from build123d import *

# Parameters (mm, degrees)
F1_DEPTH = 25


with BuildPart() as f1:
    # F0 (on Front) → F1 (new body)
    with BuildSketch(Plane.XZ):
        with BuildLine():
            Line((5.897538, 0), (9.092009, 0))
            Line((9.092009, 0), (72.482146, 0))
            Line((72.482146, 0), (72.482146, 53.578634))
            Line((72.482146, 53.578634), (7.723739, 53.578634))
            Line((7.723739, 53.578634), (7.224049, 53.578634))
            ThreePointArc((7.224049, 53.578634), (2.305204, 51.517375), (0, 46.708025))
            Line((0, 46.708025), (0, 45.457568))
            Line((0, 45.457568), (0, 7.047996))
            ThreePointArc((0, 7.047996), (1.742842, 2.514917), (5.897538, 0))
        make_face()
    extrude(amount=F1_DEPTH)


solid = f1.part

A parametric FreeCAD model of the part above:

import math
import FreeCAD as App
import Part
import Sketcher

V = App.Vector

doc = App.newDocument("Part")
params = doc.addObject("Spreadsheet::Sheet", "Params")
for row, (alias, value) in enumerate([
    ("sketch1_radius", "7.500001 mm"),
    ("pad1_length", "25 mm"),
], start=1):
    params.set(f"A{row}", alias)
    params.set(f"B{row}", "=" + value)
    params.setAlias(f"B{row}", alias)

body = doc.addObject("PartDesign::Body", "Body")

# Sketch on XZ plane
sketch1 = body.newObject("Sketcher::SketchObject", "Sketch")
sketch1.AttachmentSupport = (doc.getObject("XZ_Plane"), [""])
sketch1.MapMode = "FlatFace"
sketch1.addGeometry(Part.LineSegment(V(5.897538, 0, 0), V(72.482146, 0, 0)), False)
sketch1.addGeometry(Part.LineSegment(V(72.482146, 0, 0), V(72.482146, 53.578634, 0)), False)
sketch1.addGeometry(Part.LineSegment(V(72.482146, 53.578634, 0), V(7.224049, 53.578634, 0)), False)
sketch1.addGeometry(Part.ArcOfCircle(Part.Circle(V(7.473894, 46.082796, 0), V(0, 0, 1), 7.500001), math.radians(91.909032), math.radians(175.218053)), False)
sketch1.addGeometry(Part.LineSegment(V(0, 46.708025, 0), V(0, 7.047996, 0)), False)
sketch1.addGeometry(Part.ArcOfCircle(Part.Circle(V(7.494775, 7.327951, 0), V(0, 0, 1), 7.500002), math.radians(-177.860807), math.radians(-102.29616)), False)
sketch1.addConstraint(Sketcher.Constraint("Coincident", 0, 2, 1, 1))
sketch1.addConstraint(Sketcher.Constraint("Coincident", 1, 2, 2, 1))
sketch1.addConstraint(Sketcher.Constraint("Coincident", 2, 2, 3, 1))
sketch1.addConstraint(Sketcher.Constraint("Coincident", 3, 2, 4, 1))
sketch1.addConstraint(Sketcher.Constraint("Coincident", 4, 2, 5, 1))
sketch1.addConstraint(Sketcher.Constraint("Coincident", 5, 2, 0, 1))
sketch1.addConstraint(Sketcher.Constraint("Horizontal", 0))
sketch1.addConstraint(Sketcher.Constraint("Vertical", 1))
sketch1.addConstraint(Sketcher.Constraint("Horizontal", 2))
sketch1.addConstraint(Sketcher.Constraint("Vertical", 4))
sketch1.addConstraint(Sketcher.Constraint("Equal", 3, 5))
sketch1.addConstraint(Sketcher.Constraint("PointOnObject", 0, 2, -1))
sketch1.addConstraint(Sketcher.Constraint("PointOnObject", 3, 2, -2))
sketch1.addConstraint(Sketcher.Constraint("Radius", 3, 7.500001))
sketch1.addConstraint(Sketcher.Constraint("DistanceX", 0, 1, 0, 2, 66.584608))
sketch1.addConstraint(Sketcher.Constraint("DistanceY", 4, 2, 4, 1, 39.660029))
sketch1.addConstraint(Sketcher.Constraint("DistanceY", 4, 2, 3, 3, 39.0348))
sketch1.addConstraint(Sketcher.Constraint("DistanceX", 2, 2, 2, 1, 65.258097))
sketch1.addConstraint(Sketcher.Constraint("DistanceY", 1, 1, 1, 2, 53.578634))
sketch1.addConstraint(Sketcher.Constraint("DistanceY", -1, 1, 5, 3, 7.327951))
sketch1.setExpression("Constraints[13]", "Params.sketch1_radius")
pad1 = body.newObject("PartDesign::Pad", "Pad")
pad1.Profile = sketch1
pad1.setExpression("Length", "Params.pad1_length")

doc.recompute()
